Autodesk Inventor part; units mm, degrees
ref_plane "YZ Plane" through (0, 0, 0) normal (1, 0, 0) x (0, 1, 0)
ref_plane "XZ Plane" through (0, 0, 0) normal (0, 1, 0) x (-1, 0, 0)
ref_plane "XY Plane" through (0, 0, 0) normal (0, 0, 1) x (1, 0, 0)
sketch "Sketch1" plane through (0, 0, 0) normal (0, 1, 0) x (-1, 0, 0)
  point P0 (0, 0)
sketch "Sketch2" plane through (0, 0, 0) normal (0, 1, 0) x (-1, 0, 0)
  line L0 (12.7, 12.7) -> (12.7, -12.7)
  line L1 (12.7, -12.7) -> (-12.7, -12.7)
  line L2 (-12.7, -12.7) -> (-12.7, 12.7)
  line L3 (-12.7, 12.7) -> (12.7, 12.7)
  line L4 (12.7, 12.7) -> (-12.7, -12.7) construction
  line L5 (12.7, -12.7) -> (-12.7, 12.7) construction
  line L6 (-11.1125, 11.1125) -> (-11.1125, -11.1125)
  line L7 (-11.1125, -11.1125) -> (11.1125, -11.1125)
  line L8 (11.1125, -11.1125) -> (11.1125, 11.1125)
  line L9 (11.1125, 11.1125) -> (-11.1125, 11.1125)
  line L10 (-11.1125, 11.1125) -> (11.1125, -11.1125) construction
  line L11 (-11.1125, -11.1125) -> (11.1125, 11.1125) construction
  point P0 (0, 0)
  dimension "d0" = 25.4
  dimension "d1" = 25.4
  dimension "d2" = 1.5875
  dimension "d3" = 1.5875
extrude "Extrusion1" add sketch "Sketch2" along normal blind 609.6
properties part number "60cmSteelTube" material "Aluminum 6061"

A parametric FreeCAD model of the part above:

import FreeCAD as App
import Part
import Sketcher

V = App.Vector
Q = App.Units.Quantity


def add_polygon(sketch, points):
    """Adds a closed chain of lines whose ends are joined by coincident constraints."""
    first, n = sketch.GeometryCount, len(points)
    for a, b in zip(points, points[1:] + points[:1]):
        sketch.addGeometry(Part.LineSegment(App.Vector(*a, 0), App.Vector(*b, 0)), False)
    for i in range(n):
        sketch.addConstraint(Sketcher.Constraint("Coincident", first + i, 2, first + (i + 1) % n, 1))

doc = App.newDocument("Part")
body = doc.addObject("PartDesign::Body", "Body")

sketch1 = doc.addObject("Sketcher::SketchObject", "Sketch")
body.addObject(sketch1)
sketch1.AttachmentSupport = (doc.XZ_Plane, [""])
sketch1.MapMode = "FlatFace"
add_polygon(sketch1, [(-12.7, -12.7), (-12.7, 12.7), (12.7, 12.7), (12.7, -12.7)])
add_polygon(sketch1, [(11.1125, -11.1125), (11.1125, 11.1125), (-11.1125, 11.1125), (-11.1125, -11.1125)])
sketch1.addConstraint([
    Sketcher.Constraint("Vertical", 0),
    Sketcher.Constraint("Horizontal", 1),
    Sketcher.Constraint("Vertical", 2),
    Sketcher.Constraint("Horizontal", 3),
    Sketcher.Constraint("Vertical", 4),
    Sketcher.Constraint("Horizontal", 5),
    Sketcher.Constraint("Vertical", 6),
    Sketcher.Constraint("Horizontal", 7),
    Sketcher.Constraint("Symmetric", 0, 2, 2, 2, -1, 1),
    Sketcher.Constraint("Symmetric", 4, 2, 6, 2, -1, 1),
    Sketcher.Constraint("Equal", 3, 0),
    Sketcher.Constraint("Equal", 7, 4),
    Sketcher.Constraint("DistanceX", 1, 1, 1, 2, Q("1 in")),
    Sketcher.Constraint("DistanceX", 4, 2, 1, 2, Q("0.0625 in")),
])
pad1 = doc.addObject("PartDesign::Pad", "Pad")
body.addObject(pad1)
pad1.Profile = sketch1
pad1.Length = Q("24 in")
pad1.Reversed = True

doc.recompute()
